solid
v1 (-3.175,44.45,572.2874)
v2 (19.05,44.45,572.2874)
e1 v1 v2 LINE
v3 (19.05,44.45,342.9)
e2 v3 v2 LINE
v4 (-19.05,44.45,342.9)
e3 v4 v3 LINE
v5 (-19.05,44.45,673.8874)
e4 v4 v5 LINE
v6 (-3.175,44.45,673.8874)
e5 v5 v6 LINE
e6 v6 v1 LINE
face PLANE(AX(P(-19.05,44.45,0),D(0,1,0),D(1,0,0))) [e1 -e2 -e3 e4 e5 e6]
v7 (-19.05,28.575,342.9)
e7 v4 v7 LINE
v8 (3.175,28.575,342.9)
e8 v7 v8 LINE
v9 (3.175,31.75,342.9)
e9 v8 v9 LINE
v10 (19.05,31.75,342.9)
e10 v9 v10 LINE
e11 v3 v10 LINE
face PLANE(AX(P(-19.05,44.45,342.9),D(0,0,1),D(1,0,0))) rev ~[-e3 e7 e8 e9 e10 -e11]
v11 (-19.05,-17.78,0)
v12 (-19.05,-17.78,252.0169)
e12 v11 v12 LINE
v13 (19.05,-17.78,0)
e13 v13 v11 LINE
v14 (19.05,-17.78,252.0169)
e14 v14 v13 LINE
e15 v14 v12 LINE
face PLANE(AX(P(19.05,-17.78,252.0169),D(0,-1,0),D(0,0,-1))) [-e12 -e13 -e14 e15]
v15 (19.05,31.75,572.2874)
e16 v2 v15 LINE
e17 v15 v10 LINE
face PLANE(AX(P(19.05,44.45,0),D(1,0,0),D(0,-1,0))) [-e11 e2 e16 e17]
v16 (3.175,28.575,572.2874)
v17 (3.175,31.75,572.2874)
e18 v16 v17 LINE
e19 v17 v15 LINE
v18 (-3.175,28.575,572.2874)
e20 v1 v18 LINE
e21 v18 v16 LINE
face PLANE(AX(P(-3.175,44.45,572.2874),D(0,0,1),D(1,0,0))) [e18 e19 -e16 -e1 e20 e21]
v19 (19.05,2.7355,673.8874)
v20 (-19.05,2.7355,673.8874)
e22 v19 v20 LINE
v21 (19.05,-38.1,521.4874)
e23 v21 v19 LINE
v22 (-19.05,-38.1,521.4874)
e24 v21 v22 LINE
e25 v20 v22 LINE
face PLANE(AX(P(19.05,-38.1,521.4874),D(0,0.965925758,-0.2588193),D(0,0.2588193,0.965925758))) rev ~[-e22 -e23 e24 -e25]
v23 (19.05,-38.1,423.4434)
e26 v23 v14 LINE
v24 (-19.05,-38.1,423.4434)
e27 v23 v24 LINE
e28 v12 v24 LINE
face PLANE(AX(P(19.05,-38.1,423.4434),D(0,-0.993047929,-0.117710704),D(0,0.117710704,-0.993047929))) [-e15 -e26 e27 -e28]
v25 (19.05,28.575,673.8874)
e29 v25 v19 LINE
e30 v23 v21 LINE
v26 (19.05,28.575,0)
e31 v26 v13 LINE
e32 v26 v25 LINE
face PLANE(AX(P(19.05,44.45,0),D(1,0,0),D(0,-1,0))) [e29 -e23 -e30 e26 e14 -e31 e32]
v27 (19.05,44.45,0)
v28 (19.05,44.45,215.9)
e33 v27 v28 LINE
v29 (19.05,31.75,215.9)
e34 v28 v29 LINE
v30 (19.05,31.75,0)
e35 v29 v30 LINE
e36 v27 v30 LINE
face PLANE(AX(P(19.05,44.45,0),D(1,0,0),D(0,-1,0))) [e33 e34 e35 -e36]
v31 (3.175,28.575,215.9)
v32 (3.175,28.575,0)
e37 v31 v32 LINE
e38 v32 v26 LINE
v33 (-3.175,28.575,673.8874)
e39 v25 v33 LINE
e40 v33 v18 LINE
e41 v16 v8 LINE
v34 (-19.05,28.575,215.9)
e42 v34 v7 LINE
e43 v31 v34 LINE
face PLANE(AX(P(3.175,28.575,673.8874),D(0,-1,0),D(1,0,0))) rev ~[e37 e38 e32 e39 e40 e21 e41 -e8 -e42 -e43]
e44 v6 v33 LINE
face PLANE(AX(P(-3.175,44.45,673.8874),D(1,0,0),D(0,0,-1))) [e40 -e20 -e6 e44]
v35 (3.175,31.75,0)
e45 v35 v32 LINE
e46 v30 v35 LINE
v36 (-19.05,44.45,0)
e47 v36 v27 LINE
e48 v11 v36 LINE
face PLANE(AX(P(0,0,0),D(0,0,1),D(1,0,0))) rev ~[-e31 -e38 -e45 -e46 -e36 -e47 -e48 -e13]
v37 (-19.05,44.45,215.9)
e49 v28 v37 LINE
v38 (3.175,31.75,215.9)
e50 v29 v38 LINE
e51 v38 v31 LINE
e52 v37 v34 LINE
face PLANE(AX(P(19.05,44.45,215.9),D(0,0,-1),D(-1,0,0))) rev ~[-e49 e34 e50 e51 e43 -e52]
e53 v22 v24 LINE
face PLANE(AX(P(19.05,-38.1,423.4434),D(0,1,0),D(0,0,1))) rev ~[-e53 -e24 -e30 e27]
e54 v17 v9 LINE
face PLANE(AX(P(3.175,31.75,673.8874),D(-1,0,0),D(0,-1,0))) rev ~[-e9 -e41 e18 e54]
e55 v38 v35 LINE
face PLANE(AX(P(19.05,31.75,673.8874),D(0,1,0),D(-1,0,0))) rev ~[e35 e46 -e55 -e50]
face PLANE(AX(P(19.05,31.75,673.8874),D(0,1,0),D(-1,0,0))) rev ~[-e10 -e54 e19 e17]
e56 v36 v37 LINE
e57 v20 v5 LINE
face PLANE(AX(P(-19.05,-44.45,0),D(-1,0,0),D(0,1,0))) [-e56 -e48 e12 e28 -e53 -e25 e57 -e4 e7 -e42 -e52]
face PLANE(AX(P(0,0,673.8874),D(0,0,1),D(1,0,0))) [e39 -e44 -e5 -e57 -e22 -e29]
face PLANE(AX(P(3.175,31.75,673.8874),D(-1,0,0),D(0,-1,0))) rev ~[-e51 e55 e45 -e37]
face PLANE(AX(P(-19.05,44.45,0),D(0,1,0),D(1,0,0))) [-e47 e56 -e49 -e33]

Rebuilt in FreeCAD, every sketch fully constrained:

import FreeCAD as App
import Part
import Sketcher
Q = App.Units.Quantity


def add_polygon(sketch, points):
    """Adds a closed chain of lines whose ends are joined by coincident constraints."""
    first, n = sketch.GeometryCount, len(points)
    for a, b in zip(points, points[1:] + points[:1]):
        sketch.addGeometry(Part.LineSegment(App.Vector(*a, 0), App.Vector(*b, 0)), False)
    for i in range(n):
        sketch.addConstraint(Sketcher.Constraint("Coincident", first + i, 2, first + (i + 1) % n, 1))

doc = App.newDocument("Part")
params = doc.addObject("Spreadsheet::Sheet", "Params")
for row, (alias, value) in enumerate([
    ("sketch1_width", "1.5 in"),
    ("sketch1_height", "3.5 in"),
    ("pad1_length", "26.531 in"),
    ("sketch2_width", "0.625 in"),
    ("sketch2_height", "0.125 in"),
    ("pocket1_length", "29 in"),
    ("sketch3_height", "3.86 in"),
    ("sketch3_height2", "26.531 in"),
    ("pocket2_length", "6 in"),
    ("sketch4_height", "4 in"),
    ("sketch4_width", "0.875 in"),
    ("pocket3_length", "0.625 in"),
    ("sketch5_height", "5 in"),
    ("sketch5_width", "1.5 in"),
    ("pocket4_length", "0.625 in"),
], start=1):
    params.set(f"A{row}", alias)
    params.set(f"B{row}", "=" + value)
    params.setAlias(f"B{row}", alias)

body = doc.addObject("PartDesign::Body", "Body")

# Sketch on XY plane
sketch1 = body.newObject("Sketcher::SketchObject", "Sketch")
sketch1.AttachmentSupport = (doc.getObject("XY_Plane"), [""])
sketch1.MapMode = "FlatFace"
add_polygon(sketch1, [(-19, -44), (19, -44), (19, 44), (-19, 44)])  # lines 0-3
sketch1.addConstraint([
    Sketcher.Constraint("Horizontal", 0),
    Sketcher.Constraint("Vertical", 1),
    Sketcher.Constraint("Horizontal", 2),
    Sketcher.Constraint("Vertical", 3),
    Sketcher.Constraint("Symmetric", 0, 2, 2, 2, -1, 1),
    Sketcher.Constraint("DistanceX", 0, 1, 0, 2, Q("1.5 in")),
    Sketcher.Constraint("DistanceY", 1, 1, 1, 2, Q("3.5 in")),
])
sketch1.setExpression("Constraints[9]", "Params.sketch1_width")
sketch1.setExpression("Constraints[10]", "Params.sketch1_height")
pad1 = body.newObject("PartDesign::Pad", "Pad")
pad1.Profile = sketch1
pad1.setExpression("Length", "Params.pad1_length")

# Sketch on XY plane
sketch2 = body.newObject("Sketcher::SketchObject", "Sketch001")
sketch2.AttachmentSupport = (doc.getObject("XY_Plane"), [""])
sketch2.MapMode = "FlatFace"
sketch2.AttachmentOffset = App.Placement(App.Vector(0, 0, 26.531 * 25.4), App.Rotation())
add_polygon(sketch2, [(3.2, 28.6), (19.1, 28.6), (19.1, 31.8), (3.2, 31.8)])  # lines 0-3
sketch2.addConstraint([
    Sketcher.Constraint("Horizontal", 0),
    Sketcher.Constraint("Vertical", 1),
    Sketcher.Constraint("Horizontal", 2),
    Sketcher.Constraint("Vertical", 3),
    Sketcher.Constraint("DistanceX", 0, 1, 0, 2, Q("0.625 in")),
    Sketcher.Constraint("DistanceY", 1, 1, 1, 2, Q("0.125 in")),
    Sketcher.Constraint("DistanceX", -1, 1, 2, 2, Q("0.125 in")),
    Sketcher.Constraint("DistanceY", -1, 1, 1, 2, Q("1.25 in")),
])
sketch2.setExpression("Constraints[8]", "Params.sketch2_width")
sketch2.setExpression("Constraints[9]", "Params.sketch2_height")
pocket1 = body.newObject("PartDesign::Pocket", "Pocket")
pocket1.Profile = sketch2
pocket1.setExpression("Length", "Params.pocket1_length")

# Sketch on YZ plane
sketch3 = body.newObject("Sketcher::SketchObject", "Sketch002")
sketch3.AttachmentSupport = (doc.getObject("YZ_Plane"), [""])
sketch3.MapMode = "FlatFace"
sketch3.AttachmentOffset = App.Placement(App.Vector(0, 0, 0.75 * 25.4), App.Rotation())
add_polygon(sketch3, [(-44, 674), (-44, 0), (-18, 0), (-18, 252), (-38, 423), (-38, 521), (3, 674)])  # lines 0-6
sketch3.addConstraint([
    Sketcher.Constraint("Vertical", 0),
    Sketcher.Constraint("Horizontal", 1),
    Sketcher.Constraint("Vertical", 2),
    Sketcher.Constraint("Vertical", 4),
    Sketcher.Constraint("Horizontal", 6),
    Sketcher.Constraint("PointOnObject", 0, 2, -1),
    Sketcher.Constraint("DistanceY", 4, 2, 5, 2, Q("6 in")),
    Sketcher.Constraint("DistanceY", 4, 1, 4, 2, Q("3.86 in")),
    Sketcher.Constraint("DistanceX", 3, 2, 2, 2, Q("0.8 in")),
    Sketcher.Constraint("DistanceX", 0, 2, 3, 2, Q("0.25 in")),
    Sketcher.Constraint("Angle", 5, Q("75 deg")),
    Sketcher.Constraint("DistanceX", 1, 2, -1, 1, Q("0.7 in")),
    Sketcher.Constraint("DistanceY", 0, 2, 0, 1, Q("26.531 in")),
    Sketcher.Constraint("Angle", 3, Q("96.76 deg")),
])
sketch3.setExpression("Constraints[14]", "Params.sketch3_height")
sketch3.setExpression("Constraints[19]", "Params.sketch3_height2")
pocket2 = body.newObject("PartDesign::Pocket", "Pocket001")
pocket2.Profile = sketch3
pocket2.setExpression("Length", "Params.pocket2_length")

# Sketch on XZ plane
sketch4 = body.newObject("Sketcher::SketchObject", "Sketch003")
sketch4.AttachmentSupport = (doc.getObject("XZ_Plane"), [""])
sketch4.MapMode = "FlatFace"
sketch4.AttachmentOffset = App.Placement(App.Vector(0, 0, -1.75 * 25.4), App.Rotation())
add_polygon(sketch4, [(-3, 674), (19, 674), (19, 572), (-3, 572)])  # lines 0-3
sketch4.addConstraint([
    Sketcher.Constraint("Horizontal", 0),
    Sketcher.Constraint("Vertical", 1),
    Sketcher.Constraint("Horizontal", 2),
    Sketcher.Constraint("Vertical", 3),
    Sketcher.Constraint("DistanceY", 1, 2, 1, 1, Q("4 in")),
    Sketcher.Constraint("DistanceX", 0, 1, 0, 2, Q("0.875 in")),
    Sketcher.Constraint("DistanceX", -1, 1, 0, 2, Q("0.75 in")),
    Sketcher.Constraint("DistanceY", -1, 1, 0, 2, Q("26.531 in")),
])
sketch4.setExpression("Constraints[8]", "Params.sketch4_height")
sketch4.setExpression("Constraints[9]", "Params.sketch4_width")
pocket3 = body.newObject("PartDesign::Pocket", "Pocket002")
pocket3.Profile = sketch4
pocket3.setExpression("Length", "Params.pocket3_length")
pocket3.Reversed = True

# Sketch on XZ plane
sketch5 = body.newObject("Sketcher::SketchObject", "Sketch004")
sketch5.AttachmentSupport = (doc.getObject("XZ_Plane"), [""])
sketch5.MapMode = "FlatFace"
sketch5.AttachmentOffset = App.Placement(App.Vector(0, 0, -1.75 * 25.4), App.Rotation())
add_polygon(sketch5, [(19, 343), (19, 216), (-19, 216), (-19, 343)])  # lines 0-3
sketch5.addConstraint([
    Sketcher.Constraint("Vertical", 0),
    Sketcher.Constraint("Horizontal", 1),
    Sketcher.Constraint("Vertical", 2),
    Sketcher.Constraint("Horizontal", 3),
    Sketcher.Constraint("DistanceY", 0, 2, 0, 1, Q("5 in")),
    Sketcher.Constraint("DistanceX", 1, 2, 1, 1, Q("1.5 in")),
    Sketcher.Constraint("DistanceY", -1, 1, 0, 2, Q("8.5 in")),
    Sketcher.Constraint("DistanceX", -1, 1, 0, 2, Q("0.75 in")),
])
sketch5.setExpression("Constraints[8]", "Params.sketch5_height")
sketch5.setExpression("Constraints[9]", "Params.sketch5_width")
pocket4 = body.newObject("PartDesign::Pocket", "Pocket003")
pocket4.Profile = sketch5
pocket4.setExpression("Length", "Params.pocket4_length")
pocket4.Reversed = True

doc.recompute()
